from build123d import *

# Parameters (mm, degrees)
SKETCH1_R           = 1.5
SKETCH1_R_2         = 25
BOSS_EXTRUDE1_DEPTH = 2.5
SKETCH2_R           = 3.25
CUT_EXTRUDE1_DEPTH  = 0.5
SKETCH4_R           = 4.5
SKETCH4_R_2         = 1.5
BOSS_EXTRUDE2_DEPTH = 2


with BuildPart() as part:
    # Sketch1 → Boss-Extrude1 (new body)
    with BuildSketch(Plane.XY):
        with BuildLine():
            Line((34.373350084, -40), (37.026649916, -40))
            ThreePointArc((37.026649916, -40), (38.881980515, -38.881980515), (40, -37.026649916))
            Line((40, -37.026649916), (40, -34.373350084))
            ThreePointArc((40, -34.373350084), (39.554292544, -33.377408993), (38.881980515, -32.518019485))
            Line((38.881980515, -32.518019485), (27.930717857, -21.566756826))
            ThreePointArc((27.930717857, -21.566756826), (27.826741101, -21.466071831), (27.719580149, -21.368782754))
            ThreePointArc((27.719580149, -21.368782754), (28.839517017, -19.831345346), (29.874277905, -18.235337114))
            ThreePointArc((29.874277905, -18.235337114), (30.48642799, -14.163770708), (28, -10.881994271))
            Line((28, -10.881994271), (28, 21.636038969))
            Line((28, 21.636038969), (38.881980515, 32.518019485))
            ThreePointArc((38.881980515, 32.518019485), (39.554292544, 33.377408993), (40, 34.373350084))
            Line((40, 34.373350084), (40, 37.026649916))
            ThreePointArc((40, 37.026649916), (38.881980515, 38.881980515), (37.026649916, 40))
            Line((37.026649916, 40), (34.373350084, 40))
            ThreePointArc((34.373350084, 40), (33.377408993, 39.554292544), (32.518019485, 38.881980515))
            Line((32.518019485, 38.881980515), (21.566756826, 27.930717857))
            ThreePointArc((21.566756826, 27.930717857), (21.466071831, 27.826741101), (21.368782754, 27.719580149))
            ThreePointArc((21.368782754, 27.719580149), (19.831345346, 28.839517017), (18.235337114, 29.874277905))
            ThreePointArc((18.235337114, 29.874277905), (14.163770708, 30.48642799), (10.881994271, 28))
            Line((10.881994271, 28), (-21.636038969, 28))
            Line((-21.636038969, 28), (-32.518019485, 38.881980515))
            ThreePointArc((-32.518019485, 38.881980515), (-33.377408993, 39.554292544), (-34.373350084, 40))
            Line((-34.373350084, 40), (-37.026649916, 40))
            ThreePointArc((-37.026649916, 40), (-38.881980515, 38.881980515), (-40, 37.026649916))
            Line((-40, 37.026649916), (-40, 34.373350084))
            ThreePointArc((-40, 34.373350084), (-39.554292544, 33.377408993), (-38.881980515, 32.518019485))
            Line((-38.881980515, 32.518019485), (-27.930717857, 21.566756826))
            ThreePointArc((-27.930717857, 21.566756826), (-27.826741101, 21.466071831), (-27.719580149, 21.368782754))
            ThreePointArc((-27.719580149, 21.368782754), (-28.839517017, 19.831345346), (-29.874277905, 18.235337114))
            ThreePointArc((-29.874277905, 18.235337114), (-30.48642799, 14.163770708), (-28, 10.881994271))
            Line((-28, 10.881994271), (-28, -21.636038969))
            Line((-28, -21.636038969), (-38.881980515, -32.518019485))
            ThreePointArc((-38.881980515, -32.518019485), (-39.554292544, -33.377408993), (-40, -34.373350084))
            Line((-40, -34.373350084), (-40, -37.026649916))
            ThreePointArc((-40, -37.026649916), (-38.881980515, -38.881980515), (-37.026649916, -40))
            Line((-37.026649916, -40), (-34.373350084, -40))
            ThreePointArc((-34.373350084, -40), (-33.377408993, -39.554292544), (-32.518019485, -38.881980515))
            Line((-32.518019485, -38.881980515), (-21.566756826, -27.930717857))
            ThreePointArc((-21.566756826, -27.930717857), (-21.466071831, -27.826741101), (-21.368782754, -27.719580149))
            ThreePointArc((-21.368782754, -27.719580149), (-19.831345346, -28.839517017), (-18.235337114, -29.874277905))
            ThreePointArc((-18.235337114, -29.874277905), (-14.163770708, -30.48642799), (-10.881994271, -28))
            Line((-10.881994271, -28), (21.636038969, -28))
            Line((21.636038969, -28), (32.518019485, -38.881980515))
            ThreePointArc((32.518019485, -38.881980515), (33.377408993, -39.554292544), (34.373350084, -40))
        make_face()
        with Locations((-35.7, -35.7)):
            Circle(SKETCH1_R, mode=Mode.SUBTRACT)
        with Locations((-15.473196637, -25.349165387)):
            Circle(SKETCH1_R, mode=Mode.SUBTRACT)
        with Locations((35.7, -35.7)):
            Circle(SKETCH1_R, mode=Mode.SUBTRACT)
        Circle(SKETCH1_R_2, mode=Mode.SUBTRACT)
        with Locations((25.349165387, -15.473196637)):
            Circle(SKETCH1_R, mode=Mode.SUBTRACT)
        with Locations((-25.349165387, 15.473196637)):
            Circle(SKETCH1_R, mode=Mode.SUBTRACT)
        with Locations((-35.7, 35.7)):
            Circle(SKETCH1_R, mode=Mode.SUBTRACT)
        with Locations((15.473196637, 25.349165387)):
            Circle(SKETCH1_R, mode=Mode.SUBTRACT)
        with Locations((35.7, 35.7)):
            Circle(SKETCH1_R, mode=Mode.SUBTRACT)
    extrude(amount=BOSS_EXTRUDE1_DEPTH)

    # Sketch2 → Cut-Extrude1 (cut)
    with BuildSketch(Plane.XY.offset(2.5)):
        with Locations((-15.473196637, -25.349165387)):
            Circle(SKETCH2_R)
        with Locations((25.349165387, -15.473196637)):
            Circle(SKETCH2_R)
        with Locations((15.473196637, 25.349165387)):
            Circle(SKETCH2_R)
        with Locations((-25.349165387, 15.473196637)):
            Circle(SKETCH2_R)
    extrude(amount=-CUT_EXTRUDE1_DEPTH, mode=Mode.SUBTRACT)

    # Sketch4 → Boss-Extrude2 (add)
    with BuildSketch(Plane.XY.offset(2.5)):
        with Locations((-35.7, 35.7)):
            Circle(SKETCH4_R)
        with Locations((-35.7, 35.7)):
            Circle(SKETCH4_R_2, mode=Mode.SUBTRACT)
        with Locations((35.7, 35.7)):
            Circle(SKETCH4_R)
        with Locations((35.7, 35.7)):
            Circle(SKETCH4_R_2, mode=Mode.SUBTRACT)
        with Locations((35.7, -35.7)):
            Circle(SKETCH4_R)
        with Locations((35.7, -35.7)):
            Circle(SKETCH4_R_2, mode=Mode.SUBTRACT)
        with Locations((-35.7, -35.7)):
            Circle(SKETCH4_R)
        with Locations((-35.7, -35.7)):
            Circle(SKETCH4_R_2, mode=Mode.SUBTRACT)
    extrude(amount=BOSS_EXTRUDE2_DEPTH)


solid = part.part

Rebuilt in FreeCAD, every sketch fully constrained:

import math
import FreeCAD as App
import Part
import Sketcher

V = App.Vector

doc = App.newDocument("Part")
body = doc.addObject("PartDesign::Body", "Body")

# Sketch on XY plane
sketch1 = doc.addObject("Sketcher::SketchObject", "Sketch")
body.addObject(sketch1)
sketch1.AttachmentSupport = (doc.XY_Plane, [""])
sketch1.MapMode = "FlatFace"
sketch1.addGeometry([
    Part.LineSegment(V(34.37, -40, 0), V(37.03, -40, 0)),  # 0
    Part.ArcOfCircle(Part.Circle(V(35.7, -35.7, 0), V(0, 0, 1), 4.5), math.radians(-73), math.radians(-17)),  # 1
    Part.LineSegment(V(40, -37.03, 0), V(40, -34.37, 0)),  # 2
    Part.ArcOfCircle(Part.Circle(V(35.7, -35.7, 0), V(0, 0, 1), 4.5), math.radians(17), math.radians(45)),  # 3
    Part.LineSegment(V(38.88, -32.52, 0), V(27.93, -21.57, 0)),  # 4
    Part.ArcOfCircle(Part.Circle(V(24.75, -24.75, 0), V(0, 0, 1), 4.5), math.radians(45), math.radians(48.69)),  # 5
    Part.ArcOfCircle(Part.Circle(V(0, 0, 0), V(0, 0, 1), 35), math.radians(-37.63), math.radians(-31.4)),  # 6
    Part.ArcOfCircle(Part.Circle(V(25.35, -15.47, 0), V(0, 0, 1), 5.3), math.radians(-31), math.radians(60)),  # 7
    Part.LineSegment(V(28, -10.88, 0), V(28, 21.64, 0)),  # 8
    Part.LineSegment(V(28, 21.64, 0), V(38.88, 32.52, 0)),  # 9
    Part.ArcOfCircle(Part.Circle(V(35.7, 35.7, 0), V(0, 0, 1), 4.5), math.radians(-45), math.radians(-17)),  # 10
    Part.LineSegment(V(40, 34.37, 0), V(40, 37.03, 0)),  # 11
    Part.ArcOfCircle(Part.Circle(V(35.7, 35.7, 0), V(0, 0, 1), 4.5), math.radians(17), math.radians(73)),  # 12
    Part.LineSegment(V(37.03, 40, 0), V(34.37, 40, 0)),  # 13
    Part.ArcOfCircle(Part.Circle(V(35.7, 35.7, 0), V(0, 0, 1), 4.5), math.radians(107), math.radians(135)),  # 14
    Part.LineSegment(V(32.52, 38.88, 0), V(21.57, 27.93, 0)),  # 15
    Part.ArcOfCircle(Part.Circle(V(24.75, 24.75, 0), V(0, 0, 1), 4.5), math.radians(135), math.radians(138.69)),  # 16
    Part.ArcOfCircle(Part.Circle(V(0, 0, 0), V(0, 0, 1), 35), math.radians(52.37), math.radians(58.6)),  # 17
    Part.ArcOfCircle(Part.Circle(V(15.47, 25.35, 0), V(0, 0, 1), 5.3), math.radians(59), math.radians(150)),  # 18
    Part.LineSegment(V(10.88, 28, 0), V(-21.64, 28, 0)),  # 19
    Part.LineSegment(V(-21.64, 28, 0), V(-32.52, 38.88, 0)),  # 20
    Part.ArcOfCircle(Part.Circle(V(-35.7, 35.7, 0), V(0, 0, 1), 4.5), math.radians(45), math.radians(73)),  # 21
    Part.LineSegment(V(-34.37, 40, 0), V(-37.03, 40, 0)),  # 22
    Part.ArcOfCircle(Part.Circle(V(-35.7, 35.7, 0), V(0, 0, 1), 4.5), math.radians(107), math.radians(163)),  # 23
    Part.LineSegment(V(-40, 37.03, 0), V(-40, 34.37, 0)),  # 24
    Part.ArcOfCircle(Part.Circle(V(-35.7, 35.7, 0), V(0, 0, 1), 4.5), math.radians(-163), math.radians(-135)),  # 25
    Part.LineSegment(V(-38.88, 32.52, 0), V(-27.93, 21.57, 0)),  # 26
    Part.ArcOfCircle(Part.Circle(V(-24.75, 24.75, 0), V(0, 0, 1), 4.5), math.radians(-135), math.radians(-131.31)),  # 27
    Part.ArcOfCircle(Part.Circle(V(0, 0, 0), V(0, 0, 1), 35), math.radians(142.37), math.radians(148.6)),  # 28
    Part.ArcOfCircle(Part.Circle(V(-25.35, 15.47, 0), V(0, 0, 1), 5.3), math.radians(149), math.radians(240)),  # 29
    Part.LineSegment(V(-28, 10.88, 0), V(-28, -21.64, 0)),  # 30
    Part.LineSegment(V(-28, -21.64, 0), V(-38.88, -32.52, 0)),  # 31
    Part.ArcOfCircle(Part.Circle(V(-35.7, -35.7, 0), V(0, 0, 1), 4.5), math.radians(135), math.radians(163)),  # 32
    Part.LineSegment(V(-40, -34.37, 0), V(-40, -37.03, 0)),  # 33
    Part.ArcOfCircle(Part.Circle(V(-35.7, -35.7, 0), V(0, 0, 1), 4.5), math.radians(-163), math.radians(-107)),  # 34
    Part.LineSegment(V(-37.03, -40, 0), V(-34.37, -40, 0)),  # 35
    Part.ArcOfCircle(Part.Circle(V(-35.7, -35.7, 0), V(0, 0, 1), 4.5), math.radians(-73), math.radians(-45)),  # 36
    Part.LineSegment(V(-32.52, -38.88, 0), V(-21.57, -27.93, 0)),  # 37
    Part.ArcOfCircle(Part.Circle(V(-24.75, -24.75, 0), V(0, 0, 1), 4.5), math.radians(-45), math.radians(-41.31)),  # 38
    Part.ArcOfCircle(Part.Circle(V(0, 0, 0), V(0, 0, 1), 35), math.radians(-127.63), math.radians(-121.4)),  # 39
    Part.ArcOfCircle(Part.Circle(V(-15.47, -25.35, 0), V(0, 0, 1), 5.3), math.radians(-121), math.radians(-30)),  # 40
    Part.LineSegment(V(-10.88, -28, 0), V(21.64, -28, 0)),  # 41
    Part.LineSegment(V(21.64, -28, 0), V(32.52, -38.88, 0)),  # 42
    Part.ArcOfCircle(Part.Circle(V(35.7, -35.7, 0), V(0, 0, 1), 4.5), math.radians(-135), math.radians(-107)),  # 43
    Part.Circle(V(-35.7, -35.7, 0), V(0, 0, 1), 1.5),  # 44
    Part.Circle(V(-15.47, -25.35, 0), V(0, 0, 1), 1.5),  # 45
    Part.Circle(V(35.7, -35.7, 0), V(0, 0, 1), 1.5),  # 46
    Part.Circle(V(25.35, -15.47, 0), V(0, 0, 1), 1.5),  # 47
    Part.Circle(V(-25.35, 15.47, 0), V(0, 0, 1), 1.5),  # 48
    Part.Circle(V(-35.7, 35.7, 0), V(0, 0, 1), 1.5),  # 49
    Part.Circle(V(0, 0, 0), V(0, 0, 1), 25),  # 50
    Part.Circle(V(15.47, 25.35, 0), V(0, 0, 1), 1.5),  # 51
    Part.Circle(V(35.7, 35.7, 0), V(0, 0, 1), 1.5),  # 52
], False)
sketch1.addConstraint([
    Sketcher.Constraint("Coincident", 0, 2, 1, 1),
    Sketcher.Constraint("Coincident", 1, 2, 2, 1),
    Sketcher.Constraint("Coincident", 2, 2, 3, 1),
    Sketcher.Constraint("Tangent", 3, 2, 4, 1),
    Sketcher.Constraint("Tangent", 4, 2, 5, 1),
    Sketcher.Constraint("Coincident", 5, 2, 6, 1),
    Sketcher.Constraint("Tangent", 6, 2, 7, 1),
    Sketcher.Constraint("Coincident", 7, 2, 8, 1),
    Sketcher.Constraint("Coincident", 8, 2, 9, 1),
    Sketcher.Constraint("Tangent", 9, 2, 10, 1),
    Sketcher.Constraint("Coincident", 10, 2, 11, 1),
    Sketcher.Constraint("Coincident", 11, 2, 12, 1),
    Sketcher.Constraint("Coincident", 12, 2, 13, 1),
    Sketcher.Constraint("Coincident", 13, 2, 14, 1),
    Sketcher.Constraint("Tangent", 14, 2, 15, 1),
    Sketcher.Constraint("Tangent", 15, 2, 16, 1),
    Sketcher.Constraint("Coincident", 16, 2, 17, 1),
    Sketcher.Constraint("Tangent", 17, 2, 18, 1),
    Sketcher.Constraint("Coincident", 18, 2, 19, 1),
    Sketcher.Constraint("Coincident", 19, 2, 20, 1),
    Sketcher.Constraint("Tangent", 20, 2, 21, 1),
    Sketcher.Constraint("Coincident", 21, 2, 22, 1),
    Sketcher.Constraint("Coincident", 22, 2, 23, 1),
    Sketcher.Constraint("Coincident", 23, 2, 24, 1),
    Sketcher.Constraint("Coincident", 24, 2, 25, 1),
    Sketcher.Constraint("Tangent", 25, 2, 26, 1),
    Sketcher.Constraint("Tangent", 26, 2, 27, 1),
    Sketcher.Constraint("Coincident", 27, 2, 28, 1),
    Sketcher.Constraint("Tangent", 28, 2, 29, 1),
    Sketcher.Constraint("Coincident", 29, 2, 30, 1),
    Sketcher.Constraint("Coincident", 30, 2, 31, 1),
    Sketcher.Constraint("Tangent", 31, 2, 32, 1),
    Sketcher.Constraint("Coincident", 32, 2, 33, 1),
    Sketcher.Constraint("Coincident", 33, 2, 34, 1),
    Sketcher.Constraint("Coincident", 34, 2, 35, 1),
    Sketcher.Constraint("Coincident", 35, 2, 36, 1),
    Sketcher.Constraint("Tangent", 36, 2, 37, 1),
    Sketcher.Constraint("Tangent", 37, 2, 38, 1),
    Sketcher.Constraint("Coincident", 38, 2, 39, 1),
    Sketcher.Constraint("Tangent", 39, 2, 40, 1),
    Sketcher.Constraint("Coincident", 40, 2, 41, 1),
    Sketcher.Constraint("Coincident", 41, 2, 42, 1),
    Sketcher.Constraint("Tangent", 42, 2, 43, 1),
    Sketcher.Constraint("Coincident", 43, 2, 0, 1),
    Sketcher.Constraint("Horizontal", 0),
    Sketcher.Constraint("Vertical", 2),
    Sketcher.Constraint("Vertical", 8),
    Sketcher.Constraint("Vertical", 11),
    Sketcher.Constraint("Horizontal", 13),
    Sketcher.Constraint("Horizontal", 19),
    Sketcher.Constraint("Horizontal", 22),
    Sketcher.Constraint("Vertical", 24),
    Sketcher.Constraint("Vertical", 30),
    Sketcher.Constraint("Vertical", 33),
    Sketcher.Constraint("Horizontal", 35),
    Sketcher.Constraint("Horizontal", 41),
    Sketcher.Constraint("Coincident", 6, 3, -1, 1),
    Sketcher.Constraint("Coincident", 17, 3, -1, 1),
    Sketcher.Constraint("Coincident", 28, 3, -1, 1),
    Sketcher.Constraint("Coincident", 39, 3, -1, 1),
    Sketcher.Constraint("Coincident", 50, 3, -1, 1),
    Sketcher.Constraint("Coincident", 3, 3, 1, 3),
    Sketcher.Constraint("Coincident", 12, 3, 10, 3),
    Sketcher.Constraint("Coincident", 14, 3, 10, 3),
    Sketcher.Constraint("Coincident", 23, 3, 21, 3),
    Sketcher.Constraint("Coincident", 25, 3, 21, 3),
    Sketcher.Constraint("Coincident", 34, 3, 32, 3),
    Sketcher.Constraint("Coincident", 36, 3, 32, 3),
    Sketcher.Constraint("Coincident", 43, 3, 1, 3),
    Sketcher.Constraint("Coincident", 44, 3, 32, 3),
    Sketcher.Constraint("Coincident", 45, 3, 40, 3),
    Sketcher.Constraint("Coincident", 46, 3, 1, 3),
    Sketcher.Constraint("Coincident", 47, 3, 7, 3),
    Sketcher.Constraint("Coincident", 48, 3, 29, 3),
    Sketcher.Constraint("Coincident", 49, 3, 21, 3),
    Sketcher.Constraint("Coincident", 51, 3, 18, 3),
    Sketcher.Constraint("Coincident", 52, 3, 10, 3),
    Sketcher.Constraint("Equal", 1, 3),
    Sketcher.Constraint("Equal", 3, 5),
    Sketcher.Constraint("Equal", 5, 10),
    Sketcher.Constraint("Equal", 10, 12),
    Sketcher.Constraint("Equal", 12, 14),
    Sketcher.Constraint("Equal", 14, 16),
    Sketcher.Constraint("Equal", 6, 17),
    Sketcher.Constraint("Equal", 7, 18),
    Sketcher.Constraint("Equal", 16, 21),
    Sketcher.Constraint("Equal", 21, 23),
    Sketcher.Constraint("Equal", 23, 25),
    Sketcher.Constraint("Equal", 25, 27),
    Sketcher.Constraint("Equal", 17, 28),
    Sketcher.Constraint("Equal", 18, 29),
    Sketcher.Constraint("Equal", 27, 32),
    Sketcher.Constraint("Equal", 32, 34),
    Sketcher.Constraint("Equal", 34, 36),
    Sketcher.Constraint("Equal", 36, 38),
    Sketcher.Constraint("Equal", 28, 39),
    Sketcher.Constraint("Equal", 29, 40),
    Sketcher.Constraint("Equal", 38, 43),
    Sketcher.Constraint("Equal", 44, 45),
    Sketcher.Constraint("Equal", 45, 46),
    Sketcher.Constraint("Equal", 46, 47),
    Sketcher.Constraint("Equal", 47, 48),
    Sketcher.Constraint("Equal", 48, 49),
    Sketcher.Constraint("Equal", 49, 51),
    Sketcher.Constraint("Equal", 51, 52),
    Sketcher.Constraint("Symmetric", 1, 3, 21, 3, -1, 1),
    Sketcher.Constraint("Symmetric", 5, 3, 27, 3, -1, 1),
    Sketcher.Constraint("Symmetric", 10, 3, 32, 3, -1, 1),
    Sketcher.Constraint("Symmetric", 16, 3, 38, 3, -1, 1),
    Sketcher.Constraint("Symmetric", 7, 2, 29, 2, -1, 1),
    Sketcher.Constraint("Symmetric", 18, 2, 40, 2, -1, 1),
    Sketcher.Constraint("Symmetric", 10, 3, 21, 3, -2),
    Sketcher.Constraint("Symmetric", 16, 3, 27, 3, -2),
    Sketcher.Constraint("Perpendicular", 4, 9),
    Sketcher.Constraint("Parallel", 9, 15),
    Sketcher.Constraint("Perpendicular", 15, 20),
    Sketcher.Constraint("Perpendicular", 26, 31),
    Sketcher.Constraint("Perpendicular", 37, 42),
    Sketcher.Constraint("Horizontal", 13, 2, 21, 2),
    Sketcher.Constraint("Horizontal", 11, 2, 23, 2),
    Sketcher.Constraint("Horizontal", 2, 2, 32, 2),
    Sketcher.Constraint("Horizontal", 0, 2, 34, 2),
    Sketcher.Constraint("Vertical", 2, 2, 10, 2),
    Sketcher.Constraint("Vertical", 0, 2, 12, 2),
    Sketcher.Constraint("Equal", 35, 2),
    Sketcher.Constraint("Equal", 41, 8),
    Sketcher.Constraint("Equal", 9, 20),
    Sketcher.Constraint("Diameter", 44, 3.0),
    Sketcher.Constraint("Diameter", 50, 50.0),
    Sketcher.Constraint("Radius", 6, 35.0),
    Sketcher.Constraint("Radius", 1, 4.5),
    Sketcher.Constraint("DistanceY", 0, 2, -1, 1, 40.0),
    Sketcher.Constraint("DistanceX", -1, 1, 1, 2, 40.0),
    Sketcher.Constraint("DistanceX", -1, 1, 7, 2, 28.0),
    Sketcher.Constraint("DistanceX", -1, 1, 1, 3, 35.7),
    Sketcher.Constraint("Radius", 7, 5.301515),
    Sketcher.Constraint("DistanceX", 19, 2, 19, 1, 32.518033),
    Sketcher.Constraint("DistanceX", -1, 1, 5, 2, 27.71958),
])
pad1 = doc.addObject("PartDesign::Pad", "Pad")
body.addObject(pad1)
pad1.Profile = sketch1
pad1.Length = 2.5

# Sketch on XY plane
sketch2 = doc.addObject("Sketcher::SketchObject", "Sketch001")
body.addObject(sketch2)
sketch2.AttachmentSupport = (doc.XY_Plane, [""])
sketch2.MapMode = "FlatFace"
sketch2.AttachmentOffset = App.Placement(V(0, 0, 2.5), App.Rotation())
sketch2.addGeometry([
    Part.Circle(V(-15.5, -25.3, 0), V(0, 0, 1), 3.2),
    Part.Circle(V(25.3, -15.5, 0), V(0, 0, 1), 3.2),
    Part.Circle(V(15.5, 25.3, 0), V(0, 0, 1), 3.2),
    Part.Circle(V(-25.3, 15.5, 0), V(0, 0, 1), 3.2),
], False)
sketch2.addConstraint([
    Sketcher.Constraint("Equal", 0, 1),
    Sketcher.Constraint("Equal", 1, 2),
    Sketcher.Constraint("Equal", 2, 3),
    Sketcher.Constraint("Symmetric", 0, 3, 2, 3, -1, 1),
    Sketcher.Constraint("Symmetric", 1, 3, 3, 3, -1, 1),
    Sketcher.Constraint("Diameter", 0, 6.5),
    Sketcher.Constraint("DistanceY", 0, 3, 1, 3, 9.875969),
    Sketcher.Constraint("DistanceX", 2, 3, 1, 3, 9.875969),
    Sketcher.Constraint("DistanceY", 0, 3, 2, 3, 50.698331),
    Sketcher.Constraint("DistanceX", 3, 3, 1, 3, 50.698331),
])
pocket1 = doc.addObject("PartDesign::Pocket", "Pocket")
body.addObject(pocket1)
pocket1.Profile = sketch2
pocket1.Length = 0.5

# Sketch on XY plane
sketch3 = doc.addObject("Sketcher::SketchObject", "Sketch002")
body.addObject(sketch3)
sketch3.AttachmentSupport = (doc.XY_Plane, [""])
sketch3.MapMode = "FlatFace"
sketch3.AttachmentOffset = App.Placement(V(0, 0, 2.5), App.Rotation())
sketch3.addGeometry([
    Part.Circle(V(-35.7, 35.7, 0), V(0, 0, 1), 4.5),  # 0
    Part.Circle(V(-35.7, 35.7, 0), V(0, 0, 1), 1.5),  # 1
    Part.Circle(V(35.7, 35.7, 0), V(0, 0, 1), 4.5),  # 2
    Part.Circle(V(35.7, 35.7, 0), V(0, 0, 1), 1.5),  # 3
    Part.Circle(V(35.7, -35.7, 0), V(0, 0, 1), 4.5),  # 4
    Part.Circle(V(35.7, -35.7, 0), V(0, 0, 1), 1.5),  # 5
    Part.Circle(V(-35.7, -35.7, 0), V(0, 0, 1), 4.5),  # 6
    Part.Circle(V(-35.7, -35.7, 0), V(0, 0, 1), 1.5),  # 7
], False)
sketch3.addConstraint([
    Sketcher.Constraint("Coincident", 1, 3, 0, 3),
    Sketcher.Constraint("Coincident", 3, 3, 2, 3),
    Sketcher.Constraint("Coincident", 5, 3, 4, 3),
    Sketcher.Constraint("Coincident", 7, 3, 6, 3),
    Sketcher.Constraint("Equal", 0, 2),
    Sketcher.Constraint("Equal", 1, 3),
    Sketcher.Constraint("Equal", 2, 4),
    Sketcher.Constraint("Equal", 3, 5),
    Sketcher.Constraint("Equal", 4, 6),
    Sketcher.Constraint("Equal", 5, 7),
    Sketcher.Constraint("Symmetric", 0, 3, 4, 3, -1, 1),
    Sketcher.Constraint("Symmetric", 2, 3, 6, 3, -1, 1),
    Sketcher.Constraint("Symmetric", 0, 3, 2, 3, -2),
    Sketcher.Constraint("Diameter", 0, 9.0),
    Sketcher.Constraint("Diameter", 1, 3.0),
    Sketcher.Constraint("DistanceX", 0, 3, -1, 1, 35.7),
    Sketcher.Constraint("DistanceY", -1, 1, 0, 3, 35.7),
])
pad2 = doc.addObject("PartDesign::Pad", "Pad001")
body.addObject(pad2)
pad2.Profile = sketch3
pad2.Length = 2

doc.recompute()
